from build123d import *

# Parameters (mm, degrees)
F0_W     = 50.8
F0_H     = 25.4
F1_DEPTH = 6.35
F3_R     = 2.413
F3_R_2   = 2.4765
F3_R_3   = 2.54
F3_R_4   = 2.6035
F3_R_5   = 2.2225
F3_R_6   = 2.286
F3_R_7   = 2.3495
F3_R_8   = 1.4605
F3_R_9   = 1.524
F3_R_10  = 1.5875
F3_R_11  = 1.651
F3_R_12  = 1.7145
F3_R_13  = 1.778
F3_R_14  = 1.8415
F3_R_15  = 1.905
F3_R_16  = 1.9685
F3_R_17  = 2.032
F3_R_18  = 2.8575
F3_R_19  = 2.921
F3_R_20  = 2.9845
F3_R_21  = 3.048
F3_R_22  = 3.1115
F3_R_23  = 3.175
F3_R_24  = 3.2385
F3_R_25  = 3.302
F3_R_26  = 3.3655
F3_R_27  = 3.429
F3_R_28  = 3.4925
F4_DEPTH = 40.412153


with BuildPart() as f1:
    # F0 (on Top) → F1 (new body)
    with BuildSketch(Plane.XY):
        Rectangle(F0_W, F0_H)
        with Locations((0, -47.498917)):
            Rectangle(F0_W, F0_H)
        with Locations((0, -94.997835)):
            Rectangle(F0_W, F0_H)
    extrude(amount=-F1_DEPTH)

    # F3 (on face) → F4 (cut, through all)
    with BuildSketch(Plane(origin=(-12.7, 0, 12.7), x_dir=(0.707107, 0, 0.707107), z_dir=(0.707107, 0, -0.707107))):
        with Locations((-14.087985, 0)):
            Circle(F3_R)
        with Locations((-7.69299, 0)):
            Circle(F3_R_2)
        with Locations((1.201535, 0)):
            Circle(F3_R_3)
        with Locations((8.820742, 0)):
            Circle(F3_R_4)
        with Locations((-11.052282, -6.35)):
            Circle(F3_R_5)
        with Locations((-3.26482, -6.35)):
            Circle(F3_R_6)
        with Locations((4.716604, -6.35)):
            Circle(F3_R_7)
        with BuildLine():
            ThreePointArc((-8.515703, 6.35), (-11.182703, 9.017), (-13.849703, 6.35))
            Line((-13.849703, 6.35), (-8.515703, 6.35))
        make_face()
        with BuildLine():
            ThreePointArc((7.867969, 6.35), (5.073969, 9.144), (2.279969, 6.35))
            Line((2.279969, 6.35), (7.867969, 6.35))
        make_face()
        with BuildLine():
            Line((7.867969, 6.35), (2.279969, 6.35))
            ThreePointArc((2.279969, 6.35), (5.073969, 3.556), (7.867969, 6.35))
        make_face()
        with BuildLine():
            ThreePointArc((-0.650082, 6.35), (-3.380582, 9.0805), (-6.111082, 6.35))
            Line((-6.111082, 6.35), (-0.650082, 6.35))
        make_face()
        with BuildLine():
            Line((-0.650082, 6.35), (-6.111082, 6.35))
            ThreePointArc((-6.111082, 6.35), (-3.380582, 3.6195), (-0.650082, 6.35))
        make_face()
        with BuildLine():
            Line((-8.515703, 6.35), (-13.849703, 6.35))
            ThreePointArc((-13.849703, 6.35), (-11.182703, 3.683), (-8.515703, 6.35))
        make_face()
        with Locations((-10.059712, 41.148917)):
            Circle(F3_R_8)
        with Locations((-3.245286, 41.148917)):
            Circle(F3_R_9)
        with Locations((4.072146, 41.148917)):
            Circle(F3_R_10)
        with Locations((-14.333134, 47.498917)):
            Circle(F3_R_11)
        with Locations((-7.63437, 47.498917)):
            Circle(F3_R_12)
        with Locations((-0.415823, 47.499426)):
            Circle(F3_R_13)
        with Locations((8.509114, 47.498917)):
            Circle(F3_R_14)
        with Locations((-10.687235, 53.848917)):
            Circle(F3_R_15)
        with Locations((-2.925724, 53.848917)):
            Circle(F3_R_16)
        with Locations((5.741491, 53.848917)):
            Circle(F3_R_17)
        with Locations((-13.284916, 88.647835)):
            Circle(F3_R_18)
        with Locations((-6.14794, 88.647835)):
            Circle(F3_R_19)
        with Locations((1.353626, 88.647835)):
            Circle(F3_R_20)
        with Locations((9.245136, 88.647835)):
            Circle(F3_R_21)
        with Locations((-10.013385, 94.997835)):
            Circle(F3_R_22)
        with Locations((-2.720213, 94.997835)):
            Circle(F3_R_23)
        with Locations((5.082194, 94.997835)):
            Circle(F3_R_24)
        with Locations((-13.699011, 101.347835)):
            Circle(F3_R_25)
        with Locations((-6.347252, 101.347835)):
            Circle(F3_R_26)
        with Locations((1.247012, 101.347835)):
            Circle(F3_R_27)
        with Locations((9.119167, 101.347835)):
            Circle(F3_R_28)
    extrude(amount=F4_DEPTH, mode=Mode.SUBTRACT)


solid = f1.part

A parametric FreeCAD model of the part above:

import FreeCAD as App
import Part
import Sketcher

V = App.Vector
Q = App.Units.Quantity


def add_polygon(sketch, points):
    """Adds a closed chain of lines whose ends are joined by coincident constraints."""
    first, n = sketch.GeometryCount, len(points)
    for a, b in zip(points, points[1:] + points[:1]):
        sketch.addGeometry(Part.LineSegment(App.Vector(*a, 0), App.Vector(*b, 0)), False)
    for i in range(n):
        sketch.addConstraint(Sketcher.Constraint("Coincident", first + i, 2, first + (i + 1) % n, 1))

doc = App.newDocument("Part")
params = doc.addObject("Spreadsheet::Sheet", "Params")
for row, (alias, value) in enumerate([
    ("sketch1_width", "2 in"),
    ("sketch1_height", "1 in"),
    ("pad1_length", "0.25 in"),
    ("sketch2_diameter", "0.2 in"),
    ("sketch2_diameter2", "0.19 in"),
    ("sketch2_diameter3", "0.18 in"),
    ("sketch2_diameter4", "0.21 in"),
    ("sketch2_diameter5", "0.22 in"),
], start=1):
    params.set(f"A{row}", alias)
    params.set(f"B{row}", "=" + value)
    params.setAlias(f"B{row}", alias)

body = doc.addObject("PartDesign::Body", "Body")
body.AllowCompound = True

# Sketch on XY plane
sketch1 = body.newObject("Sketcher::SketchObject", "Sketch")
sketch1.AttachmentSupport = (doc.getObject("XY_Plane"), [""])
sketch1.MapMode = "FlatFace"
add_polygon(sketch1, [(-25, 13), (-25, -13), (25, -13), (25, 13)])  # lines 0-3
add_polygon(sketch1, [(-25, -35), (-25, -60), (25, -60), (25, -35)])  # lines 4-7
add_polygon(sketch1, [(-25, -82), (-25, -108), (25, -108), (25, -82)])  # lines 8-11
sketch1.addConstraint([
    Sketcher.Constraint("Vertical", 0),
    Sketcher.Constraint("Horizontal", 1),
    Sketcher.Constraint("Vertical", 2),
    Sketcher.Constraint("Horizontal", 3),
    Sketcher.Constraint("Vertical", 4),
    Sketcher.Constraint("Horizontal", 5),
    Sketcher.Constraint("Vertical", 6),
    Sketcher.Constraint("Horizontal", 7),
    Sketcher.Constraint("Vertical", 8),
    Sketcher.Constraint("Horizontal", 9),
    Sketcher.Constraint("Vertical", 10),
    Sketcher.Constraint("Horizontal", 11),
    Sketcher.Constraint("Symmetric", 0, 2, 2, 2, -1, 1),
    Sketcher.Constraint("Vertical", 3, 2, 4, 2),
    Sketcher.Constraint("Vertical", 2, 2, 5, 2),
    Sketcher.Constraint("Vertical", 7, 2, 8, 2),
    Sketcher.Constraint("Vertical", 6, 2, 9, 2),
    Sketcher.Constraint("Equal", 2, 4),
    Sketcher.Constraint("Equal", 6, 8),
    Sketcher.Constraint("DistanceX", 1, 1, 1, 2, Q("2 in")),
    Sketcher.Constraint("DistanceY", 0, 2, 0, 1, Q("1 in")),
    Sketcher.Constraint("DistanceY", 10, 2, 5, 2, 22.098918),
    Sketcher.Constraint("DistanceY", 4, 2, -1, 1, 60.198917),
])
sketch1.setExpression("Constraints[31]", "Params.sketch1_width")
sketch1.setExpression("Constraints[32]", "Params.sketch1_height")
pad1 = body.newObject("PartDesign::Pad", "Pad")
pad1.Profile = sketch1
pad1.setExpression("Length", "Params.pad1_length")
pad1.Reversed = True

# Sketch on an angled plane
sketch2 = body.newObject("Sketcher::SketchObject", "Sketch001")
sketch2.Placement = App.Placement(V(-12.7, 0, 12.7), App.Rotation(V(0.707106781, 0, 0.707106781), V(0, -0.999999999, 0), V(0.707106781, 0, -0.707106781), "ZXY"))
sketch2.addGeometry([
    Part.Circle(V(-14.1, 0, 0), V(0, 0, 1), 2.4),  # 0
    Part.Circle(V(-7.7, 0, 0), V(0, 0, 1), 2.5),  # 1
    Part.Circle(V(1.2, 0, 0), V(0, 0, 1), 2.5),  # 2
    Part.Circle(V(8.8, 0, 0), V(0, 0, 1), 2.6),  # 3
    Part.Circle(V(-11.1, -6.3, 0), V(0, 0, 1), 2.2),  # 4
    Part.Circle(V(-3.3, -6.3, 0), V(0, 0, 1), 2.3),  # 5
    Part.Circle(V(4.7, -6.3, 0), V(0, 0, 1), 2.3),  # 6
    Part.Circle(V(-11.2, 6.3, 0), V(0, 0, 1), 2.7),  # 7
    Part.Circle(V(5.1, 6.3, 0), V(0, 0, 1), 2.8),  # 8
    Part.Circle(V(-3.4, 6.3, 0), V(0, 0, 1), 2.7),  # 9
    Part.Circle(V(-10.1, 41.1, 0), V(0, 0, 1), 1.5),  # 10
    Part.Circle(V(-3.2, 41.1, 0), V(0, 0, 1), 1.5),  # 11
    Part.Circle(V(4.1, 41.1, 0), V(0, 0, 1), 1.6),  # 12
    Part.Circle(V(-14.3, 47.5, 0), V(0, 0, 1), 1.7),  # 13
    Part.Circle(V(-7.6, 47.5, 0), V(0, 0, 1), 1.7),  # 14
    Part.Circle(V(-0.4, 47.5, 0), V(0, 0, 1), 1.8),  # 15
    Part.Circle(V(8.5, 47.5, 0), V(0, 0, 1), 1.8),  # 16
    Part.Circle(V(-10.7, 53.8, 0), V(0, 0, 1), 1.9),  # 17
    Part.Circle(V(-2.9, 53.8, 0), V(0, 0, 1), 2),  # 18
    Part.Circle(V(5.7, 53.8, 0), V(0, 0, 1), 2),  # 19
    Part.Circle(V(-13.3, 88.6, 0), V(0, 0, 1), 2.9),  # 20
    Part.Circle(V(-6.1, 88.6, 0), V(0, 0, 1), 2.9),  # 21
    Part.Circle(V(1.4, 88.6, 0), V(0, 0, 1), 3),  # 22
    Part.Circle(V(9.2, 88.6, 0), V(0, 0, 1), 3),  # 23
    Part.Circle(V(-10, 95, 0), V(0, 0, 1), 3.1),  # 24
    Part.Circle(V(-2.7, 95, 0), V(0, 0, 1), 3.2),  # 25
    Part.Circle(V(5.1, 95, 0), V(0, 0, 1), 3.2),  # 26
    Part.Circle(V(-13.7, 101.3, 0), V(0, 0, 1), 3.3),  # 27
    Part.Circle(V(-6.3, 101.3, 0), V(0, 0, 1), 3.4),  # 28
    Part.Circle(V(1.2, 101.3, 0), V(0, 0, 1), 3.4),  # 29
    Part.Circle(V(9.1, 101.3, 0), V(0, 0, 1), 3.5),  # 30
], False)
sketch2.addConstraint([
    Sketcher.Constraint("PointOnObject", 0, 3, -1),
    Sketcher.Constraint("PointOnObject", 1, 3, -1),
    Sketcher.Constraint("PointOnObject", 2, 3, -1),
    Sketcher.Constraint("PointOnObject", 3, 3, -1),
    Sketcher.Constraint("Horizontal", 4, 3, 5, 3),
    Sketcher.Constraint("Horizontal", 5, 3, 6, 3),
    Sketcher.Constraint("Horizontal", 7, 3, 8, 3),
    Sketcher.Constraint("Horizontal", 8, 3, 9, 3),
    Sketcher.Constraint("Horizontal", 10, 3, 11, 3),
    Sketcher.Constraint("Horizontal", 11, 3, 12, 3),
    Sketcher.Constraint("Horizontal", 13, 3, 14, 3),
    Sketcher.Constraint("Horizontal", 14, 3, 16, 3),
    Sketcher.Constraint("Horizontal", 17, 3, 18, 3),
    Sketcher.Constraint("Horizontal", 18, 3, 19, 3),
    Sketcher.Constraint("Horizontal", 20, 3, 21, 3),
    Sketcher.Constraint("Horizontal", 21, 3, 22, 3),
    Sketcher.Constraint("Horizontal", 22, 3, 23, 3),
    Sketcher.Constraint("Horizontal", 24, 3, 25, 3),
    Sketcher.Constraint("Horizontal", 25, 3, 26, 3),
    Sketcher.Constraint("Horizontal", 27, 3, 28, 3),
    Sketcher.Constraint("Horizontal", 28, 3, 29, 3),
    Sketcher.Constraint("Horizontal", 29, 3, 30, 3),
    Sketcher.Constraint("Diameter", 2, Q("0.2 in")),
    Sketcher.Constraint("Diameter", 0, Q("0.19 in")),
    Sketcher.Constraint("Diameter", 5, Q("0.18 in")),
    Sketcher.Constraint("Diameter", 7, Q("0.21 in")),
    Sketcher.Constraint("Diameter", 8, Q("0.22 in")),
    Sketcher.Constraint("Diameter", 11, Q("0.12 in")),
    Sketcher.Constraint("Diameter", 13, Q("0.13 in")),
    Sketcher.Constraint("Diameter", 15, Q("0.14 in")),
    Sketcher.Constraint("Diameter", 17, Q("0.15 in")),
    Sketcher.Constraint("Diameter", 19, Q("0.16 in")),
    Sketcher.Constraint("Diameter", 21, Q("0.23 in")),
    Sketcher.Constraint("Diameter", 23, Q("0.24 in")),
    Sketcher.Constraint("Diameter", 25, Q("0.25 in")),
    Sketcher.Constraint("Diameter", 27, Q("0.26 in")),
    Sketcher.Constraint("Diameter", 29, Q("0.27 in")),
    Sketcher.Constraint("Diameter", 1, Q("0.195 in")),
    Sketcher.Constraint("Diameter", 3, Q("0.205 in")),
    Sketcher.Constraint("Diameter", 4, Q("0.175 in")),
    Sketcher.Constraint("Diameter", 6, Q("0.185 in")),
    Sketcher.Constraint("Diameter", 9, Q("0.215 in")),
    Sketcher.Constraint("Diameter", 10, Q("0.115 in")),
    Sketcher.Constraint("Diameter", 12, Q("0.125 in")),
    Sketcher.Constraint("Diameter", 14, Q("0.135 in")),
    Sketcher.Constraint("Diameter", 16, Q("0.145 in")),
    Sketcher.Constraint("Diameter", 18, Q("0.155 in")),
    Sketcher.Constraint("Diameter", 20, Q("0.225 in")),
    Sketcher.Constraint("Diameter", 22, Q("0.235 in")),
    Sketcher.Constraint("Diameter", 24, Q("0.245 in")),
    Sketcher.Constraint("Diameter", 26, Q("0.255 in")),
    Sketcher.Constraint("Diameter", 28, Q("0.265 in")),
    Sketcher.Constraint("Diameter", 30, Q("0.275 in")),
    Sketcher.Constraint("DistanceY", 4, 3, 7, 3, Q("0.5 in")),
    Sketcher.Constraint("DistanceY", 10, 3, 17, 3, Q("0.5 in")),
    Sketcher.Constraint("DistanceY", 20, 3, 27, 3, Q("0.5 in")),
    Sketcher.Constraint("DistanceY", 4, 3, -1, 1, Q("0.25 in")),
    Sketcher.Constraint("DistanceY", 10, 3, 13, 3, Q("0.25 in")),
    Sketcher.Constraint("DistanceY", 20, 3, 24, 3, Q("0.25 in")),
    Sketcher.Constraint("DistanceX", 11, 3, 16, 3, 11.7544),
    Sketcher.Constraint("DistanceX", 13, 3, 17, 3, 3.645899),
    Sketcher.Constraint("DistanceX", 18, 3, 15, 3, 2.509901),
    Sketcher.Constraint("DistanceX", 1, 3, -1, 1, 7.69299),
    Sketcher.Constraint("DistanceX", -1, 1, 3, 3, 8.820742),
    Sketcher.Constraint("DistanceX", 4, 3, -1, 1, 11.052282),
    Sketcher.Constraint("DistanceX", 5, 3, -1, 1, 3.26482),
    Sketcher.Constraint("DistanceX", -1, 1, 8, 3, 5.073969),
    Sketcher.Constraint("DistanceX", 9, 3, -1, 1, 3.380582),
    Sketcher.Constraint("DistanceX", 10, 3, -1, 1, 10.059712),
    Sketcher.Constraint("DistanceX", 14, 3, -1, 1, 7.63437),
    Sketcher.Constraint("DistanceX", -1, 1, 19, 3, 5.741491),
    Sketcher.Constraint("DistanceX", 21, 3, -1, 1, 6.14794),
    Sketcher.Constraint("DistanceX", 27, 3, -1, 1, 13.699011),
    Sketcher.Constraint("DistanceX", 28, 3, -1, 1, 6.347252),
    Sketcher.Constraint("DistanceX", -1, 1, 29, 3, 1.247012),
    Sketcher.Constraint("DistanceX", 0, 3, 2, 3, 15.28952),
    Sketcher.Constraint("DistanceX", 2, 3, 6, 3, 3.515069),
    Sketcher.Constraint("DistanceX", 0, 3, 7, 3, 2.905282),
    Sketcher.Constraint("DistanceX", 7, 3, 4, 3, 0.130421),
    Sketcher.Constraint("DistanceX", 11, 3, 2, 3, 4.446821),
    Sketcher.Constraint("DistanceX", 11, 3, 12, 3, 7.317432),
    Sketcher.Constraint("DistanceX", 13, 3, 10, 3, 4.273422),
    Sketcher.Constraint("DistanceY", 11, 3, 15, 3, 6.350509),
    Sketcher.Constraint("DistanceX", 15, 3, 12, 3, 4.487969),
    Sketcher.Constraint("DistanceX", 20, 3, 17, 3, 2.597681),
    Sketcher.Constraint("DistanceX", 20, 3, 22, 3, 14.638542),
    Sketcher.Constraint("DistanceX", 22, 3, 23, 3, 7.89151),
    Sketcher.Constraint("DistanceX", 20, 3, 24, 3, 3.271531),
    Sketcher.Constraint("DistanceX", 24, 3, 25, 3, 7.293172),
    Sketcher.Constraint("DistanceX", 26, 3, 23, 3, 4.162942),
    Sketcher.Constraint("DistanceX", 30, 3, 23, 3, 0.125969),
    Sketcher.Constraint("DistanceY", -1, 1, 10, 3, 41.148917),
    Sketcher.Constraint("DistanceY", -1, 1, 20, 3, 88.647835),
])
sketch2.setExpression("Constraints[22]", "Params.sketch2_diameter")
sketch2.setExpression("Constraints[23]", "Params.sketch2_diameter2")
sketch2.setExpression("Constraints[24]", "Params.sketch2_diameter3")
sketch2.setExpression("Constraints[25]", "Params.sketch2_diameter4")
sketch2.setExpression("Constraints[26]", "Params.sketch2_diameter5")
pocket1 = body.newObject("PartDesign::Pocket", "Pocket")
pocket1.Profile = sketch2
pocket1.Type = "ThroughAll"
pocket1.Reversed = True

doc.recompute()
